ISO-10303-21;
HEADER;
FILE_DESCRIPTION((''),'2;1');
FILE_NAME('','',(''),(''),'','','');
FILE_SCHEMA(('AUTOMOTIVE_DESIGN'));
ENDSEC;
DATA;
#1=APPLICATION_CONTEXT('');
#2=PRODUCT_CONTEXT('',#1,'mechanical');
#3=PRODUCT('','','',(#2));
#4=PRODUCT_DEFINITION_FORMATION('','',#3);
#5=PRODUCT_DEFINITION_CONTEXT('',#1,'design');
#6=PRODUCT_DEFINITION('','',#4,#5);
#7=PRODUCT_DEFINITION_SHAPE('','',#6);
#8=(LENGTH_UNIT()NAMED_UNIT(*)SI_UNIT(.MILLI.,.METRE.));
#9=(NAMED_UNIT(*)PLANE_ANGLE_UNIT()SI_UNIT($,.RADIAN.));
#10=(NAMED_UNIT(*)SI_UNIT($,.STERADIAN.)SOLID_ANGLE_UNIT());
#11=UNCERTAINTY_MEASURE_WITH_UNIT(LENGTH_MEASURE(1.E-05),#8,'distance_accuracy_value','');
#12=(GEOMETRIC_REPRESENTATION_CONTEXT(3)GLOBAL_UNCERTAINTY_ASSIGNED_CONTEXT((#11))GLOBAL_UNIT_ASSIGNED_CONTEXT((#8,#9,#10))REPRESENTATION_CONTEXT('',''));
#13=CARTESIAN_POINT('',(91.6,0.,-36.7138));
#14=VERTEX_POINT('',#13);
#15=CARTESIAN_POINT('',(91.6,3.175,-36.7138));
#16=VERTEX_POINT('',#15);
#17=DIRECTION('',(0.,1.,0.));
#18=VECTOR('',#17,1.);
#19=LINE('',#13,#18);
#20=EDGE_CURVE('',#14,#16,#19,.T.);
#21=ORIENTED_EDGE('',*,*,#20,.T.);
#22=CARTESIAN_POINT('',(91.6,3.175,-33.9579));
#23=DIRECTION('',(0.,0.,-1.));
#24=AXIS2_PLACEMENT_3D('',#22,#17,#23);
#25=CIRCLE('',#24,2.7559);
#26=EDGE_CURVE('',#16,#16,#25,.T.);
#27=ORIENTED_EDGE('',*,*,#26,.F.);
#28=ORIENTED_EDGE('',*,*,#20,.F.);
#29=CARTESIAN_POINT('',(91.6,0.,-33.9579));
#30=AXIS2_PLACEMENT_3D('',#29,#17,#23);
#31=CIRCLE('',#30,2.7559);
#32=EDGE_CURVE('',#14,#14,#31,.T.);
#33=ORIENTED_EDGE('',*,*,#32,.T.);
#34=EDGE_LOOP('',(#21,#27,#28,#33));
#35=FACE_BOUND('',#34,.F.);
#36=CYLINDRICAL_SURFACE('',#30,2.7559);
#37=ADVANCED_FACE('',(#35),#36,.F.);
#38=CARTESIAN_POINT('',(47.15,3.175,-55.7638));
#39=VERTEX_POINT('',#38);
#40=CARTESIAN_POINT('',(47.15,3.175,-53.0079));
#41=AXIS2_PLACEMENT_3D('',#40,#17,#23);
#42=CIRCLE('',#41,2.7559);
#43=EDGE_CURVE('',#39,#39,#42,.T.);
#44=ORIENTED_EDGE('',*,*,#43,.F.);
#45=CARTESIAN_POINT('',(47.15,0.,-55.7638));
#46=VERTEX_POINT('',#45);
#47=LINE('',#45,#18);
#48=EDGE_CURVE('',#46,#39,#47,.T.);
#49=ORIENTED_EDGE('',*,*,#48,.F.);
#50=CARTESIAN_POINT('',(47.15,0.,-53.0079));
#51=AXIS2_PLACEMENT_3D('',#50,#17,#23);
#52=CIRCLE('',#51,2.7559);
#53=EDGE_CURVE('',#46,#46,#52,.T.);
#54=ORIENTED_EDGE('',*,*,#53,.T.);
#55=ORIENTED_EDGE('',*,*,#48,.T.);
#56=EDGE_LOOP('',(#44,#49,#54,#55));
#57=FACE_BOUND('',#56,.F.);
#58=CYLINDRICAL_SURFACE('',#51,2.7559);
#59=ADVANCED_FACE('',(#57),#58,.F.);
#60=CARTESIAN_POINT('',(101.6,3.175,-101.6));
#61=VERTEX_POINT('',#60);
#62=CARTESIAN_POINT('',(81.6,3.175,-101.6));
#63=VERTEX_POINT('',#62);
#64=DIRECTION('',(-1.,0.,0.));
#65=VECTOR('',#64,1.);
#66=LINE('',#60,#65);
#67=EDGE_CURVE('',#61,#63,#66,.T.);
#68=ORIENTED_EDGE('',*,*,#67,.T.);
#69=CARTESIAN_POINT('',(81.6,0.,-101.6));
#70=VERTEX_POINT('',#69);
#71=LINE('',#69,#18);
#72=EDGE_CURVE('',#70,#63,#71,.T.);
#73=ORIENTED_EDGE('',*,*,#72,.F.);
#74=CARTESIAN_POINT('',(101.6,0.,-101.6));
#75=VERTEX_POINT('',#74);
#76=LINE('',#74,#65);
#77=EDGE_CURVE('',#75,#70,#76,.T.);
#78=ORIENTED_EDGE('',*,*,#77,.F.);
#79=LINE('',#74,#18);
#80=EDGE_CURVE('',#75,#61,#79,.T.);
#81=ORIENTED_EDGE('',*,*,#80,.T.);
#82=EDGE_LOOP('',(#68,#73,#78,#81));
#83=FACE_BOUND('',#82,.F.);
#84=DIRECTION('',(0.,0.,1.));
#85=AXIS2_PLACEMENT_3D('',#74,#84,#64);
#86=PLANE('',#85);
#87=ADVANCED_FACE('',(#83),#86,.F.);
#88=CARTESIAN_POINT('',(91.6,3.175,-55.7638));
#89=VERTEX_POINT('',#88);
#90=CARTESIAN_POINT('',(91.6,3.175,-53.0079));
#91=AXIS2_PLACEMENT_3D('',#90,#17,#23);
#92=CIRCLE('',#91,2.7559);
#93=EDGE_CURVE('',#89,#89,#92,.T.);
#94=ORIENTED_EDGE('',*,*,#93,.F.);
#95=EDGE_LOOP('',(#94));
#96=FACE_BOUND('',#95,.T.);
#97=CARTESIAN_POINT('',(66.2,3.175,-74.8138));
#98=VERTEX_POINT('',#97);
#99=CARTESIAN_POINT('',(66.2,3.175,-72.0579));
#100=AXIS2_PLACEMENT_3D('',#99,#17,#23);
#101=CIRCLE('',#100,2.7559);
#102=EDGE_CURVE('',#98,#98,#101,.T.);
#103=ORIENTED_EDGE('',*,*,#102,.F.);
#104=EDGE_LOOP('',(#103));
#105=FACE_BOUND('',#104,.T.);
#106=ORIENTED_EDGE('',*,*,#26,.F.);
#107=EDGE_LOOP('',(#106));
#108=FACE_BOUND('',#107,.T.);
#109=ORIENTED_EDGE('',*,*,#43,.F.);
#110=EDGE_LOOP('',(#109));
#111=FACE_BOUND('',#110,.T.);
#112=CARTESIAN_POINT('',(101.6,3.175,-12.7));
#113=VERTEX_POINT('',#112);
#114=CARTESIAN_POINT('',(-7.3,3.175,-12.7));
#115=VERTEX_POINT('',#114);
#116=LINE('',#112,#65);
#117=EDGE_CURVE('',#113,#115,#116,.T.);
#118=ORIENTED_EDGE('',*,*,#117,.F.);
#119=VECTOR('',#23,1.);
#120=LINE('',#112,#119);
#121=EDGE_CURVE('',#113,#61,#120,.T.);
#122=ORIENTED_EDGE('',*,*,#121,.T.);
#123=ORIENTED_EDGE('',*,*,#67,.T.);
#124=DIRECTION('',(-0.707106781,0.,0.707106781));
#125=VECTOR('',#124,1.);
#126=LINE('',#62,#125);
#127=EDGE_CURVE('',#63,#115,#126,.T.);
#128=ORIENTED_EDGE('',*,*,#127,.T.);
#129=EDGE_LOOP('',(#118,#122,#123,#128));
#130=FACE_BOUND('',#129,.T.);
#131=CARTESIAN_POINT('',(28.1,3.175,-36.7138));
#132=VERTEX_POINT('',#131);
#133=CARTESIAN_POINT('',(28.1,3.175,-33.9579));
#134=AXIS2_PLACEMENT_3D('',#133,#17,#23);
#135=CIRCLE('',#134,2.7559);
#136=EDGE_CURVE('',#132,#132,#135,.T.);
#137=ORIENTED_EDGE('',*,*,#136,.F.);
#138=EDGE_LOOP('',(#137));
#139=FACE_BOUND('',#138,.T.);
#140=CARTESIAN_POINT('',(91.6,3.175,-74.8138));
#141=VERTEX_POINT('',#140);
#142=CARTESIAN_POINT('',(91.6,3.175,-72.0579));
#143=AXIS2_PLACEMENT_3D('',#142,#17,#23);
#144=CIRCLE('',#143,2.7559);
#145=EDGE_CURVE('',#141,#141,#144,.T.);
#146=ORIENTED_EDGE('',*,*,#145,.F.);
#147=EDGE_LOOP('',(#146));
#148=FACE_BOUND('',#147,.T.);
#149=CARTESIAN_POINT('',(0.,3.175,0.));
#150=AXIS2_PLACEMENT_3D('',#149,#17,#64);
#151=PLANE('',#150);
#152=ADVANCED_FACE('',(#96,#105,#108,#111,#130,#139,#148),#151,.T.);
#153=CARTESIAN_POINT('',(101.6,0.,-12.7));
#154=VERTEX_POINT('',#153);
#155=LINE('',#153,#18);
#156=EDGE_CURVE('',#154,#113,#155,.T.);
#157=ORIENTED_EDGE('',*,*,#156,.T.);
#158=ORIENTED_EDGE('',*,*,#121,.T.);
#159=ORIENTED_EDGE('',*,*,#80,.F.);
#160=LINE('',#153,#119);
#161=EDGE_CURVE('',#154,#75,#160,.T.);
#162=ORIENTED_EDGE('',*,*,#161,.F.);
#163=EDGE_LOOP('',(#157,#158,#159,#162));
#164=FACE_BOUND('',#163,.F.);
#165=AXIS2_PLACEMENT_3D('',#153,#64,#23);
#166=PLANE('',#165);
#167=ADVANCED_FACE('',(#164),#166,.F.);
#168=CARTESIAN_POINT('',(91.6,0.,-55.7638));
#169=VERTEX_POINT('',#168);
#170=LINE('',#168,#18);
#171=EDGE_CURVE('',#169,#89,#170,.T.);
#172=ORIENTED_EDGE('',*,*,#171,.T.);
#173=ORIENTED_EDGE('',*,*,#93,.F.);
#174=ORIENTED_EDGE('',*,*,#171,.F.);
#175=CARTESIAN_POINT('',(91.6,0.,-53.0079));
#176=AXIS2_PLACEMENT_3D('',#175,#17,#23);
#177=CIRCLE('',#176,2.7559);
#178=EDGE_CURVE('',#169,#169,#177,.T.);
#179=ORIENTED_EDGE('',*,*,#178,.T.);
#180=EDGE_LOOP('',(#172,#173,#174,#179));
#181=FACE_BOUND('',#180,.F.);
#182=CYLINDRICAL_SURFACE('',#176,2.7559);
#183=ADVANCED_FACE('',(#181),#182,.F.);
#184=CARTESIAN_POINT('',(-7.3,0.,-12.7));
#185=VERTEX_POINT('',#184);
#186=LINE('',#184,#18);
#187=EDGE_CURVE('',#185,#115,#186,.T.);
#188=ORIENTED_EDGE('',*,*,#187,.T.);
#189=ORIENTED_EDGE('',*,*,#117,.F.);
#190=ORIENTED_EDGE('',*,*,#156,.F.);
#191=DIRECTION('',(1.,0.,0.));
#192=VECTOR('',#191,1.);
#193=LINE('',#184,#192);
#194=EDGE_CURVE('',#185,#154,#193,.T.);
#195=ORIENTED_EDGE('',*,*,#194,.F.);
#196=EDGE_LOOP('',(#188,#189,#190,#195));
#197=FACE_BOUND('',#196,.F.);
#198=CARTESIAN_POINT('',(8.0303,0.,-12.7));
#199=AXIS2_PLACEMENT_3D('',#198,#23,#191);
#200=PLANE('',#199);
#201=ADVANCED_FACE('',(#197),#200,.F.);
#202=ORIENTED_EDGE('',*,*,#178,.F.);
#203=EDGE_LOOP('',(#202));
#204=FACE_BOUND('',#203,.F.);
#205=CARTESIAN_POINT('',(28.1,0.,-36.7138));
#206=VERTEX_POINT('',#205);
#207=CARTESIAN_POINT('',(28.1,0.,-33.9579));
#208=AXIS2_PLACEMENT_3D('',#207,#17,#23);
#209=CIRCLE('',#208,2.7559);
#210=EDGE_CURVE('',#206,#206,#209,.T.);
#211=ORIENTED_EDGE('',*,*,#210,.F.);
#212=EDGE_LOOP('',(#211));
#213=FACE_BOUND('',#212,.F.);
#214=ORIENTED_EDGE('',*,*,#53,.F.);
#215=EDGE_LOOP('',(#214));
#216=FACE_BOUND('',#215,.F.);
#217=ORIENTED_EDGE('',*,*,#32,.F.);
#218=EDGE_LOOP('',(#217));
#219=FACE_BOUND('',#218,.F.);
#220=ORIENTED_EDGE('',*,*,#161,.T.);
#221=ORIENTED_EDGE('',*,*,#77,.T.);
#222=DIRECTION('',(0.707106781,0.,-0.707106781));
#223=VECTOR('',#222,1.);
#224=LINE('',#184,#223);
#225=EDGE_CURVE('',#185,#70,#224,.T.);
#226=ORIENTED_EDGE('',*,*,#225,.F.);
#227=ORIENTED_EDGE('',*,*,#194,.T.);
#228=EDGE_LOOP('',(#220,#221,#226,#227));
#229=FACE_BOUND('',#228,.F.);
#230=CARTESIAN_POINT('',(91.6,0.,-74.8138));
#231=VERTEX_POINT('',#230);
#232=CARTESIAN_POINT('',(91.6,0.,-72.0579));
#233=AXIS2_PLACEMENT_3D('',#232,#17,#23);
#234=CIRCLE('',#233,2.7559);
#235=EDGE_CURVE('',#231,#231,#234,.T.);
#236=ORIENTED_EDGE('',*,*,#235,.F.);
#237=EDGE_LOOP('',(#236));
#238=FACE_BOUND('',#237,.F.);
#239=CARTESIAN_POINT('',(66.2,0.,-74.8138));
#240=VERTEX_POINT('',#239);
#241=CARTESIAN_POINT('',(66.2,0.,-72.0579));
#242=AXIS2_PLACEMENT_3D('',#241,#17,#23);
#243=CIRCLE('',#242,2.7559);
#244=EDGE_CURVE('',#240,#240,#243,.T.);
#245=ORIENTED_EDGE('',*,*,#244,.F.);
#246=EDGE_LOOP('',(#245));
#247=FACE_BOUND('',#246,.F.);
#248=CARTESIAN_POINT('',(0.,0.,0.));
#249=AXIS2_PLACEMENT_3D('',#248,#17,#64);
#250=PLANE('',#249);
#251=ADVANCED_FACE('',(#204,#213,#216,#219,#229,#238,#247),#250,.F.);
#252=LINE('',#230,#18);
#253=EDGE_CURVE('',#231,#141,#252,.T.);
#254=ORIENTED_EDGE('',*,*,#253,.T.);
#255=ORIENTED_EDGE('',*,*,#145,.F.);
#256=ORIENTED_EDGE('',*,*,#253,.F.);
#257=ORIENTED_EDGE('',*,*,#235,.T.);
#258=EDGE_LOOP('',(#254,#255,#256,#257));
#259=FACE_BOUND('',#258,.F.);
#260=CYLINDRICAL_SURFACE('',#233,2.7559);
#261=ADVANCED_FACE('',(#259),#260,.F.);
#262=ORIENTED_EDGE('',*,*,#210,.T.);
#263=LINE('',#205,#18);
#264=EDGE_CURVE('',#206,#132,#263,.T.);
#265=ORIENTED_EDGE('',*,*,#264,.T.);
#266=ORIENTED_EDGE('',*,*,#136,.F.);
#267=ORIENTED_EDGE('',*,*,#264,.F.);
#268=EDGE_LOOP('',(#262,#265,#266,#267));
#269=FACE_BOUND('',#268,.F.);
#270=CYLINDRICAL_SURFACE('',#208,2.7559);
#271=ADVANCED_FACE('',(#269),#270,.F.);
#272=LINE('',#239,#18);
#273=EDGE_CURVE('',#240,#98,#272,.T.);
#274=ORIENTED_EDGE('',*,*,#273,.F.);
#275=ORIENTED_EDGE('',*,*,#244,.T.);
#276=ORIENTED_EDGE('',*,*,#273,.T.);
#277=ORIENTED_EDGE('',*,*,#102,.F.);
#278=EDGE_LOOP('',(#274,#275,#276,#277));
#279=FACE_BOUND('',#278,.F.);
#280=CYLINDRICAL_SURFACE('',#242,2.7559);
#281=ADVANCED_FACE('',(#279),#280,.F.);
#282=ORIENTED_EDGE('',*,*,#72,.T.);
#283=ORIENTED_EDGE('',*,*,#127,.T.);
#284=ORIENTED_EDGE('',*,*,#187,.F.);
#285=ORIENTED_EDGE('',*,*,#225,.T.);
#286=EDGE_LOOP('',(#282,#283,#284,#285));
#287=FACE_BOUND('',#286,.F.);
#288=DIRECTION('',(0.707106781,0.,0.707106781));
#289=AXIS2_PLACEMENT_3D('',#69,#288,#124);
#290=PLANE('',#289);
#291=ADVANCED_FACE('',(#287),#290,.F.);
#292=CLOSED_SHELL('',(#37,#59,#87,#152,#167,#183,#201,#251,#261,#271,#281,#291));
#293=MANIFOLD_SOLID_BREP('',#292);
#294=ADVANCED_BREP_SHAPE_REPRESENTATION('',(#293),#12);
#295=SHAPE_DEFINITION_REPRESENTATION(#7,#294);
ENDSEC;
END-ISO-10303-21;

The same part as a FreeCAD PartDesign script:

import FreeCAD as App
import Part
import Sketcher

V = App.Vector
Q = App.Units.Quantity

doc = App.newDocument("Part")
body = doc.addObject("PartDesign::Body", "Body")

sketch1 = doc.addObject("Sketcher::SketchObject", "Sketch")
body.addObject(sketch1)
sketch1.AttachmentSupport = (doc.XZ_Plane, [""])
sketch1.MapMode = "FlatFace"
sketch1.addGeometry([
    Part.LineSegment(V(102, -13, 0), V(102, -102, 0)),
    Part.LineSegment(V(102, -102, 0), V(82, -102, 0)),
    Part.LineSegment(V(82, -102, 0), V(-7, -13, 0)),
    Part.LineSegment(V(-7, -13, 0), V(102, -13, 0)),
], False)
sketch1.addConstraint([
    Sketcher.Constraint("Coincident", 0, 2, 1, 1),
    Sketcher.Constraint("Coincident", 1, 2, 2, 1),
    Sketcher.Constraint("Coincident", 2, 2, 3, 1),
    Sketcher.Constraint("Coincident", 3, 2, 0, 1),
    Sketcher.Constraint("Vertical", 0),
    Sketcher.Constraint("Horizontal", 1),
    Sketcher.Constraint("Horizontal", 3),
    Sketcher.Constraint("DistanceY", 0, 2, 0, 1, Q("3.5 in")),
    Sketcher.Constraint("DistanceX", -1, 1, 0, 2, Q("4 in")),
    Sketcher.Constraint("DistanceY", 0, 2, -1, 1, Q("4 in")),
    Sketcher.Constraint("DistanceX", 2, 2, 1, 2, Q("3.5 in")),
    Sketcher.Constraint("DistanceX", 1, 2, 1, 1, Q("0.7874 in")),
])
pad1 = doc.addObject("PartDesign::Pad", "Pad")
body.addObject(pad1)
pad1.Profile = sketch1
pad1.Length = Q("0.125 in")
pad1.Reversed = True

sketch2 = doc.addObject("Sketcher::SketchObject", "Sketch001")
body.addObject(sketch2)
sketch2.AttachmentSupport = (doc.XZ_Plane, [""])
sketch2.MapMode = "FlatFace"
sketch2.addGeometry([
    Part.Circle(V(91.6, -34, 0), V(0, 0, 1), 2.8),
    Part.Circle(V(91.6, -72.1, 0), V(0, 0, 1), 2.8),
    Part.Circle(V(66.2, -72.1, 0), V(0, 0, 1), 2.8),
    Part.Circle(V(28.1, -34, 0), V(0, 0, 1), 2.8),
    Part.Circle(V(47.1, -53, 0), V(0, 0, 1), 2.8),
    Part.Circle(V(91.6, -53, 0), V(0, 0, 1), 2.8),
], False)
sketch2.addConstraint([
    Sketcher.Constraint("Equal", 0, 1),
    Sketcher.Constraint("Equal", 1, 2),
    Sketcher.Constraint("Equal", 2, 3),
    Sketcher.Constraint("Equal", 3, 4),
    Sketcher.Constraint("Equal", 4, 5),
    Sketcher.Constraint("Horizontal", 1, 3, 2, 3),
    Sketcher.Constraint("Horizontal", 0, 3, 3, 3),
    Sketcher.Constraint("Horizontal", 4, 3, 5, 3),
    Sketcher.Constraint("Vertical", 0, 3, 1, 3),
    Sketcher.Constraint("Vertical", 1, 3, 5, 3),
    Sketcher.Constraint("Diameter", 0, Q("0.217 in")),
    Sketcher.Constraint("DistanceX", 2, 3, 1, 3, Q("1 in")),
    Sketcher.Constraint("DistanceY", 1, 3, 0, 3, Q("1.5 in")),
    Sketcher.Constraint("DistanceX", 3, 3, 2, 3, Q("1.5 in")),
    Sketcher.Constraint("DistanceX", 3, 3, 4, 3, Q("0.75 in")),
    Sketcher.Constraint("DistanceY", 4, 3, 3, 3, Q("0.75 in")),
    Sketcher.Constraint("DistanceX", -1, 1, 0, 3, Q("3.6063 in")),
    Sketcher.Constraint("DistanceY", 0, 3, -1, 1, Q("33.958 mm")),
])
doc.recompute()
hole = doc.addObject("PartDesign::Hole", "Hole")
body.addObject(hole)
hole.Profile = sketch2
hole.ThreadType = "None"
hole.Diameter = Q("0.217 in")
hole.DepthType = "ThroughAll"

doc.recompute()
